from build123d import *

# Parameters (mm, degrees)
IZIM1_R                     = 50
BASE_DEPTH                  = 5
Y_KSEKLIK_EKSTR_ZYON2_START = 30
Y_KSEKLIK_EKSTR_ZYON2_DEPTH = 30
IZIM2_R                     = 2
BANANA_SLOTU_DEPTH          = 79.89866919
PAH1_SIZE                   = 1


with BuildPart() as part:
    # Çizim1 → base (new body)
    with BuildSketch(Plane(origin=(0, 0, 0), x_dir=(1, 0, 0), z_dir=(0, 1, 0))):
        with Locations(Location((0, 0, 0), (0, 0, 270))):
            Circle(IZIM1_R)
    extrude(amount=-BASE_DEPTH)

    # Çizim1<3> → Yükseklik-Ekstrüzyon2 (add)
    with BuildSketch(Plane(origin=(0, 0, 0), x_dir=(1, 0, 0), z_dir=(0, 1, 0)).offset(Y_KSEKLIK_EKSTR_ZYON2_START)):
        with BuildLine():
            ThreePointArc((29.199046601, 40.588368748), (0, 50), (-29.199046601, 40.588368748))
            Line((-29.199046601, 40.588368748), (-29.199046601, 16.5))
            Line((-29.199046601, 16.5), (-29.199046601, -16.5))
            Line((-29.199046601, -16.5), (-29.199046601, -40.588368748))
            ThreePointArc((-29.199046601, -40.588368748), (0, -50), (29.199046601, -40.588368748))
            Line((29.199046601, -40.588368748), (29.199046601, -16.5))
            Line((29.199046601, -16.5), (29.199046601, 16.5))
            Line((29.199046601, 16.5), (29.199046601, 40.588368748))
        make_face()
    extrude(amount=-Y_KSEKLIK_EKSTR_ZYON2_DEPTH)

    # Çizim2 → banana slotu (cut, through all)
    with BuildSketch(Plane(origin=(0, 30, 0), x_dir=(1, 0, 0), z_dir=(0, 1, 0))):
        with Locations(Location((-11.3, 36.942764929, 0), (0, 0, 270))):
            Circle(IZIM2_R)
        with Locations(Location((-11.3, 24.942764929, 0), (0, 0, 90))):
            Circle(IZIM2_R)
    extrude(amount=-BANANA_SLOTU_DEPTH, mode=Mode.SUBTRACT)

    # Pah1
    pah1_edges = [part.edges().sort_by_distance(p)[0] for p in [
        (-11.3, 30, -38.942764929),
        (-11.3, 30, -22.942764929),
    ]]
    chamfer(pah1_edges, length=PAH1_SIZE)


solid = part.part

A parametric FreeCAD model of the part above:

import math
import FreeCAD as App
import Part
import Sketcher


def edges_at(feature, points):
    """Names of the edges that pass closest to the given points."""
    edges = feature.Shape.Edges
    near = lambda p: min(range(len(edges)), key=lambda i: edges[i].distToShape(Part.Vertex(*p))[0])
    return sorted({f"Edge{near(p) + 1}" for p in points})

doc = App.newDocument("Part")
body = doc.addObject("PartDesign::Body", "Body")

# Sketch on XZ plane
sketch1 = doc.addObject("Sketcher::SketchObject", "Sketch")
body.addObject(sketch1)
sketch1.AttachmentSupport = (doc.XZ_Plane, [""])
sketch1.MapMode = "FlatFace"
sketch1.addGeometry(Part.Circle(App.Vector(0, 0, 0), App.Vector(0, 0, 1), 50), False)
sketch1.addConstraint(Sketcher.Constraint("Coincident", 0, 3, -1, 1))
sketch1.addConstraint(Sketcher.Constraint("Diameter", 0, 100.0))
pad1 = doc.addObject("PartDesign::Pad", "Pad")
body.addObject(pad1)
pad1.Profile = sketch1
pad1.Length = 5

# Sketch on XZ plane
sketch2 = doc.addObject("Sketcher::SketchObject", "Sketch001")
body.addObject(sketch2)
sketch2.AttachmentSupport = (doc.XZ_Plane, [""])
sketch2.MapMode = "FlatFace"
sketch2.AttachmentOffset = App.Placement(App.Vector(0, 0, -30), App.Rotation())
sketch2.addGeometry(Part.ArcOfCircle(Part.Circle(App.Vector(0, 0, 0), App.Vector(0, 0, 1), 50), math.radians(-126), math.radians(-54)), False)
sketch2.addGeometry(Part.LineSegment(App.Vector(-29, -41, 0), App.Vector(-29, 41, 0)), False)
sketch2.addGeometry(Part.ArcOfCircle(Part.Circle(App.Vector(0, 0, 0), App.Vector(0, 0, 1), 50), math.radians(54), math.radians(126)), False)
sketch2.addGeometry(Part.LineSegment(App.Vector(29, 41, 0), App.Vector(29, -41, 0)), False)
sketch2.addConstraint(Sketcher.Constraint("Coincident", 0, 1, 1, 1))
sketch2.addConstraint(Sketcher.Constraint("Coincident", 1, 2, 2, 2))
sketch2.addConstraint(Sketcher.Constraint("Coincident", 2, 1, 3, 1))
sketch2.addConstraint(Sketcher.Constraint("Coincident", 3, 2, 0, 2))
sketch2.addConstraint(Sketcher.Constraint("Vertical", 1))
sketch2.addConstraint(Sketcher.Constraint("Vertical", 3))
sketch2.addConstraint(Sketcher.Constraint("Coincident", 0, 3, -1, 1))
sketch2.addConstraint(Sketcher.Constraint("Coincident", 2, 3, -1, 1))
sketch2.addConstraint(Sketcher.Constraint("Equal", 0, 2))
sketch2.addConstraint(Sketcher.Constraint("Horizontal", 1, 2, 2, 1))
sketch2.addConstraint(Sketcher.Constraint("Radius", 0, 50.0))
sketch2.addConstraint(Sketcher.Constraint("DistanceY", 1, 1, 1, 2, 81.176737))
pad2 = doc.addObject("PartDesign::Pad", "Pad001")
body.addObject(pad2)
pad2.Profile = sketch2
pad2.Length = 30

# Sketch on XZ plane
sketch3 = doc.addObject("Sketcher::SketchObject", "Sketch002")
body.addObject(sketch3)
sketch3.AttachmentSupport = (doc.XZ_Plane, [""])
sketch3.MapMode = "FlatFace"
sketch3.AttachmentOffset = App.Placement(App.Vector(0, 0, -30), App.Rotation())
sketch3.addGeometry(Part.Circle(App.Vector(-11.3, -36.9, 0), App.Vector(0, 0, 1), 2), False)
sketch3.addGeometry(Part.Circle(App.Vector(-11.3, -24.9, 0), App.Vector(0, 0, 1), 2), False)
sketch3.addConstraint(Sketcher.Constraint("Equal", 0, 1))
sketch3.addConstraint(Sketcher.Constraint("Vertical", 0, 3, 1, 3))
sketch3.addConstraint(Sketcher.Constraint("Diameter", 0, 4.0))
sketch3.addConstraint(Sketcher.Constraint("DistanceY", 0, 3, 1, 3, 12.0))
sketch3.addConstraint(Sketcher.Constraint("DistanceX", 0, 3, -1, 1, 11.3))
sketch3.addConstraint(Sketcher.Constraint("DistanceY", 0, 3, -1, 1, 36.942765))
pocket1 = doc.addObject("PartDesign::Pocket", "Pocket")
body.addObject(pocket1)
pocket1.Profile = sketch3
pocket1.Type = "ThroughAll"
pocket1.Reversed = True
doc.recompute()

chamfer = doc.addObject("PartDesign::Chamfer", "Chamfer")
body.addObject(chamfer)
chamfer.Base = (pocket1, edges_at(pocket1, [(-11.3, 30, -38.943), (-11.3, 30, -22.943)]))
chamfer.Size = 1

doc.recompute()
